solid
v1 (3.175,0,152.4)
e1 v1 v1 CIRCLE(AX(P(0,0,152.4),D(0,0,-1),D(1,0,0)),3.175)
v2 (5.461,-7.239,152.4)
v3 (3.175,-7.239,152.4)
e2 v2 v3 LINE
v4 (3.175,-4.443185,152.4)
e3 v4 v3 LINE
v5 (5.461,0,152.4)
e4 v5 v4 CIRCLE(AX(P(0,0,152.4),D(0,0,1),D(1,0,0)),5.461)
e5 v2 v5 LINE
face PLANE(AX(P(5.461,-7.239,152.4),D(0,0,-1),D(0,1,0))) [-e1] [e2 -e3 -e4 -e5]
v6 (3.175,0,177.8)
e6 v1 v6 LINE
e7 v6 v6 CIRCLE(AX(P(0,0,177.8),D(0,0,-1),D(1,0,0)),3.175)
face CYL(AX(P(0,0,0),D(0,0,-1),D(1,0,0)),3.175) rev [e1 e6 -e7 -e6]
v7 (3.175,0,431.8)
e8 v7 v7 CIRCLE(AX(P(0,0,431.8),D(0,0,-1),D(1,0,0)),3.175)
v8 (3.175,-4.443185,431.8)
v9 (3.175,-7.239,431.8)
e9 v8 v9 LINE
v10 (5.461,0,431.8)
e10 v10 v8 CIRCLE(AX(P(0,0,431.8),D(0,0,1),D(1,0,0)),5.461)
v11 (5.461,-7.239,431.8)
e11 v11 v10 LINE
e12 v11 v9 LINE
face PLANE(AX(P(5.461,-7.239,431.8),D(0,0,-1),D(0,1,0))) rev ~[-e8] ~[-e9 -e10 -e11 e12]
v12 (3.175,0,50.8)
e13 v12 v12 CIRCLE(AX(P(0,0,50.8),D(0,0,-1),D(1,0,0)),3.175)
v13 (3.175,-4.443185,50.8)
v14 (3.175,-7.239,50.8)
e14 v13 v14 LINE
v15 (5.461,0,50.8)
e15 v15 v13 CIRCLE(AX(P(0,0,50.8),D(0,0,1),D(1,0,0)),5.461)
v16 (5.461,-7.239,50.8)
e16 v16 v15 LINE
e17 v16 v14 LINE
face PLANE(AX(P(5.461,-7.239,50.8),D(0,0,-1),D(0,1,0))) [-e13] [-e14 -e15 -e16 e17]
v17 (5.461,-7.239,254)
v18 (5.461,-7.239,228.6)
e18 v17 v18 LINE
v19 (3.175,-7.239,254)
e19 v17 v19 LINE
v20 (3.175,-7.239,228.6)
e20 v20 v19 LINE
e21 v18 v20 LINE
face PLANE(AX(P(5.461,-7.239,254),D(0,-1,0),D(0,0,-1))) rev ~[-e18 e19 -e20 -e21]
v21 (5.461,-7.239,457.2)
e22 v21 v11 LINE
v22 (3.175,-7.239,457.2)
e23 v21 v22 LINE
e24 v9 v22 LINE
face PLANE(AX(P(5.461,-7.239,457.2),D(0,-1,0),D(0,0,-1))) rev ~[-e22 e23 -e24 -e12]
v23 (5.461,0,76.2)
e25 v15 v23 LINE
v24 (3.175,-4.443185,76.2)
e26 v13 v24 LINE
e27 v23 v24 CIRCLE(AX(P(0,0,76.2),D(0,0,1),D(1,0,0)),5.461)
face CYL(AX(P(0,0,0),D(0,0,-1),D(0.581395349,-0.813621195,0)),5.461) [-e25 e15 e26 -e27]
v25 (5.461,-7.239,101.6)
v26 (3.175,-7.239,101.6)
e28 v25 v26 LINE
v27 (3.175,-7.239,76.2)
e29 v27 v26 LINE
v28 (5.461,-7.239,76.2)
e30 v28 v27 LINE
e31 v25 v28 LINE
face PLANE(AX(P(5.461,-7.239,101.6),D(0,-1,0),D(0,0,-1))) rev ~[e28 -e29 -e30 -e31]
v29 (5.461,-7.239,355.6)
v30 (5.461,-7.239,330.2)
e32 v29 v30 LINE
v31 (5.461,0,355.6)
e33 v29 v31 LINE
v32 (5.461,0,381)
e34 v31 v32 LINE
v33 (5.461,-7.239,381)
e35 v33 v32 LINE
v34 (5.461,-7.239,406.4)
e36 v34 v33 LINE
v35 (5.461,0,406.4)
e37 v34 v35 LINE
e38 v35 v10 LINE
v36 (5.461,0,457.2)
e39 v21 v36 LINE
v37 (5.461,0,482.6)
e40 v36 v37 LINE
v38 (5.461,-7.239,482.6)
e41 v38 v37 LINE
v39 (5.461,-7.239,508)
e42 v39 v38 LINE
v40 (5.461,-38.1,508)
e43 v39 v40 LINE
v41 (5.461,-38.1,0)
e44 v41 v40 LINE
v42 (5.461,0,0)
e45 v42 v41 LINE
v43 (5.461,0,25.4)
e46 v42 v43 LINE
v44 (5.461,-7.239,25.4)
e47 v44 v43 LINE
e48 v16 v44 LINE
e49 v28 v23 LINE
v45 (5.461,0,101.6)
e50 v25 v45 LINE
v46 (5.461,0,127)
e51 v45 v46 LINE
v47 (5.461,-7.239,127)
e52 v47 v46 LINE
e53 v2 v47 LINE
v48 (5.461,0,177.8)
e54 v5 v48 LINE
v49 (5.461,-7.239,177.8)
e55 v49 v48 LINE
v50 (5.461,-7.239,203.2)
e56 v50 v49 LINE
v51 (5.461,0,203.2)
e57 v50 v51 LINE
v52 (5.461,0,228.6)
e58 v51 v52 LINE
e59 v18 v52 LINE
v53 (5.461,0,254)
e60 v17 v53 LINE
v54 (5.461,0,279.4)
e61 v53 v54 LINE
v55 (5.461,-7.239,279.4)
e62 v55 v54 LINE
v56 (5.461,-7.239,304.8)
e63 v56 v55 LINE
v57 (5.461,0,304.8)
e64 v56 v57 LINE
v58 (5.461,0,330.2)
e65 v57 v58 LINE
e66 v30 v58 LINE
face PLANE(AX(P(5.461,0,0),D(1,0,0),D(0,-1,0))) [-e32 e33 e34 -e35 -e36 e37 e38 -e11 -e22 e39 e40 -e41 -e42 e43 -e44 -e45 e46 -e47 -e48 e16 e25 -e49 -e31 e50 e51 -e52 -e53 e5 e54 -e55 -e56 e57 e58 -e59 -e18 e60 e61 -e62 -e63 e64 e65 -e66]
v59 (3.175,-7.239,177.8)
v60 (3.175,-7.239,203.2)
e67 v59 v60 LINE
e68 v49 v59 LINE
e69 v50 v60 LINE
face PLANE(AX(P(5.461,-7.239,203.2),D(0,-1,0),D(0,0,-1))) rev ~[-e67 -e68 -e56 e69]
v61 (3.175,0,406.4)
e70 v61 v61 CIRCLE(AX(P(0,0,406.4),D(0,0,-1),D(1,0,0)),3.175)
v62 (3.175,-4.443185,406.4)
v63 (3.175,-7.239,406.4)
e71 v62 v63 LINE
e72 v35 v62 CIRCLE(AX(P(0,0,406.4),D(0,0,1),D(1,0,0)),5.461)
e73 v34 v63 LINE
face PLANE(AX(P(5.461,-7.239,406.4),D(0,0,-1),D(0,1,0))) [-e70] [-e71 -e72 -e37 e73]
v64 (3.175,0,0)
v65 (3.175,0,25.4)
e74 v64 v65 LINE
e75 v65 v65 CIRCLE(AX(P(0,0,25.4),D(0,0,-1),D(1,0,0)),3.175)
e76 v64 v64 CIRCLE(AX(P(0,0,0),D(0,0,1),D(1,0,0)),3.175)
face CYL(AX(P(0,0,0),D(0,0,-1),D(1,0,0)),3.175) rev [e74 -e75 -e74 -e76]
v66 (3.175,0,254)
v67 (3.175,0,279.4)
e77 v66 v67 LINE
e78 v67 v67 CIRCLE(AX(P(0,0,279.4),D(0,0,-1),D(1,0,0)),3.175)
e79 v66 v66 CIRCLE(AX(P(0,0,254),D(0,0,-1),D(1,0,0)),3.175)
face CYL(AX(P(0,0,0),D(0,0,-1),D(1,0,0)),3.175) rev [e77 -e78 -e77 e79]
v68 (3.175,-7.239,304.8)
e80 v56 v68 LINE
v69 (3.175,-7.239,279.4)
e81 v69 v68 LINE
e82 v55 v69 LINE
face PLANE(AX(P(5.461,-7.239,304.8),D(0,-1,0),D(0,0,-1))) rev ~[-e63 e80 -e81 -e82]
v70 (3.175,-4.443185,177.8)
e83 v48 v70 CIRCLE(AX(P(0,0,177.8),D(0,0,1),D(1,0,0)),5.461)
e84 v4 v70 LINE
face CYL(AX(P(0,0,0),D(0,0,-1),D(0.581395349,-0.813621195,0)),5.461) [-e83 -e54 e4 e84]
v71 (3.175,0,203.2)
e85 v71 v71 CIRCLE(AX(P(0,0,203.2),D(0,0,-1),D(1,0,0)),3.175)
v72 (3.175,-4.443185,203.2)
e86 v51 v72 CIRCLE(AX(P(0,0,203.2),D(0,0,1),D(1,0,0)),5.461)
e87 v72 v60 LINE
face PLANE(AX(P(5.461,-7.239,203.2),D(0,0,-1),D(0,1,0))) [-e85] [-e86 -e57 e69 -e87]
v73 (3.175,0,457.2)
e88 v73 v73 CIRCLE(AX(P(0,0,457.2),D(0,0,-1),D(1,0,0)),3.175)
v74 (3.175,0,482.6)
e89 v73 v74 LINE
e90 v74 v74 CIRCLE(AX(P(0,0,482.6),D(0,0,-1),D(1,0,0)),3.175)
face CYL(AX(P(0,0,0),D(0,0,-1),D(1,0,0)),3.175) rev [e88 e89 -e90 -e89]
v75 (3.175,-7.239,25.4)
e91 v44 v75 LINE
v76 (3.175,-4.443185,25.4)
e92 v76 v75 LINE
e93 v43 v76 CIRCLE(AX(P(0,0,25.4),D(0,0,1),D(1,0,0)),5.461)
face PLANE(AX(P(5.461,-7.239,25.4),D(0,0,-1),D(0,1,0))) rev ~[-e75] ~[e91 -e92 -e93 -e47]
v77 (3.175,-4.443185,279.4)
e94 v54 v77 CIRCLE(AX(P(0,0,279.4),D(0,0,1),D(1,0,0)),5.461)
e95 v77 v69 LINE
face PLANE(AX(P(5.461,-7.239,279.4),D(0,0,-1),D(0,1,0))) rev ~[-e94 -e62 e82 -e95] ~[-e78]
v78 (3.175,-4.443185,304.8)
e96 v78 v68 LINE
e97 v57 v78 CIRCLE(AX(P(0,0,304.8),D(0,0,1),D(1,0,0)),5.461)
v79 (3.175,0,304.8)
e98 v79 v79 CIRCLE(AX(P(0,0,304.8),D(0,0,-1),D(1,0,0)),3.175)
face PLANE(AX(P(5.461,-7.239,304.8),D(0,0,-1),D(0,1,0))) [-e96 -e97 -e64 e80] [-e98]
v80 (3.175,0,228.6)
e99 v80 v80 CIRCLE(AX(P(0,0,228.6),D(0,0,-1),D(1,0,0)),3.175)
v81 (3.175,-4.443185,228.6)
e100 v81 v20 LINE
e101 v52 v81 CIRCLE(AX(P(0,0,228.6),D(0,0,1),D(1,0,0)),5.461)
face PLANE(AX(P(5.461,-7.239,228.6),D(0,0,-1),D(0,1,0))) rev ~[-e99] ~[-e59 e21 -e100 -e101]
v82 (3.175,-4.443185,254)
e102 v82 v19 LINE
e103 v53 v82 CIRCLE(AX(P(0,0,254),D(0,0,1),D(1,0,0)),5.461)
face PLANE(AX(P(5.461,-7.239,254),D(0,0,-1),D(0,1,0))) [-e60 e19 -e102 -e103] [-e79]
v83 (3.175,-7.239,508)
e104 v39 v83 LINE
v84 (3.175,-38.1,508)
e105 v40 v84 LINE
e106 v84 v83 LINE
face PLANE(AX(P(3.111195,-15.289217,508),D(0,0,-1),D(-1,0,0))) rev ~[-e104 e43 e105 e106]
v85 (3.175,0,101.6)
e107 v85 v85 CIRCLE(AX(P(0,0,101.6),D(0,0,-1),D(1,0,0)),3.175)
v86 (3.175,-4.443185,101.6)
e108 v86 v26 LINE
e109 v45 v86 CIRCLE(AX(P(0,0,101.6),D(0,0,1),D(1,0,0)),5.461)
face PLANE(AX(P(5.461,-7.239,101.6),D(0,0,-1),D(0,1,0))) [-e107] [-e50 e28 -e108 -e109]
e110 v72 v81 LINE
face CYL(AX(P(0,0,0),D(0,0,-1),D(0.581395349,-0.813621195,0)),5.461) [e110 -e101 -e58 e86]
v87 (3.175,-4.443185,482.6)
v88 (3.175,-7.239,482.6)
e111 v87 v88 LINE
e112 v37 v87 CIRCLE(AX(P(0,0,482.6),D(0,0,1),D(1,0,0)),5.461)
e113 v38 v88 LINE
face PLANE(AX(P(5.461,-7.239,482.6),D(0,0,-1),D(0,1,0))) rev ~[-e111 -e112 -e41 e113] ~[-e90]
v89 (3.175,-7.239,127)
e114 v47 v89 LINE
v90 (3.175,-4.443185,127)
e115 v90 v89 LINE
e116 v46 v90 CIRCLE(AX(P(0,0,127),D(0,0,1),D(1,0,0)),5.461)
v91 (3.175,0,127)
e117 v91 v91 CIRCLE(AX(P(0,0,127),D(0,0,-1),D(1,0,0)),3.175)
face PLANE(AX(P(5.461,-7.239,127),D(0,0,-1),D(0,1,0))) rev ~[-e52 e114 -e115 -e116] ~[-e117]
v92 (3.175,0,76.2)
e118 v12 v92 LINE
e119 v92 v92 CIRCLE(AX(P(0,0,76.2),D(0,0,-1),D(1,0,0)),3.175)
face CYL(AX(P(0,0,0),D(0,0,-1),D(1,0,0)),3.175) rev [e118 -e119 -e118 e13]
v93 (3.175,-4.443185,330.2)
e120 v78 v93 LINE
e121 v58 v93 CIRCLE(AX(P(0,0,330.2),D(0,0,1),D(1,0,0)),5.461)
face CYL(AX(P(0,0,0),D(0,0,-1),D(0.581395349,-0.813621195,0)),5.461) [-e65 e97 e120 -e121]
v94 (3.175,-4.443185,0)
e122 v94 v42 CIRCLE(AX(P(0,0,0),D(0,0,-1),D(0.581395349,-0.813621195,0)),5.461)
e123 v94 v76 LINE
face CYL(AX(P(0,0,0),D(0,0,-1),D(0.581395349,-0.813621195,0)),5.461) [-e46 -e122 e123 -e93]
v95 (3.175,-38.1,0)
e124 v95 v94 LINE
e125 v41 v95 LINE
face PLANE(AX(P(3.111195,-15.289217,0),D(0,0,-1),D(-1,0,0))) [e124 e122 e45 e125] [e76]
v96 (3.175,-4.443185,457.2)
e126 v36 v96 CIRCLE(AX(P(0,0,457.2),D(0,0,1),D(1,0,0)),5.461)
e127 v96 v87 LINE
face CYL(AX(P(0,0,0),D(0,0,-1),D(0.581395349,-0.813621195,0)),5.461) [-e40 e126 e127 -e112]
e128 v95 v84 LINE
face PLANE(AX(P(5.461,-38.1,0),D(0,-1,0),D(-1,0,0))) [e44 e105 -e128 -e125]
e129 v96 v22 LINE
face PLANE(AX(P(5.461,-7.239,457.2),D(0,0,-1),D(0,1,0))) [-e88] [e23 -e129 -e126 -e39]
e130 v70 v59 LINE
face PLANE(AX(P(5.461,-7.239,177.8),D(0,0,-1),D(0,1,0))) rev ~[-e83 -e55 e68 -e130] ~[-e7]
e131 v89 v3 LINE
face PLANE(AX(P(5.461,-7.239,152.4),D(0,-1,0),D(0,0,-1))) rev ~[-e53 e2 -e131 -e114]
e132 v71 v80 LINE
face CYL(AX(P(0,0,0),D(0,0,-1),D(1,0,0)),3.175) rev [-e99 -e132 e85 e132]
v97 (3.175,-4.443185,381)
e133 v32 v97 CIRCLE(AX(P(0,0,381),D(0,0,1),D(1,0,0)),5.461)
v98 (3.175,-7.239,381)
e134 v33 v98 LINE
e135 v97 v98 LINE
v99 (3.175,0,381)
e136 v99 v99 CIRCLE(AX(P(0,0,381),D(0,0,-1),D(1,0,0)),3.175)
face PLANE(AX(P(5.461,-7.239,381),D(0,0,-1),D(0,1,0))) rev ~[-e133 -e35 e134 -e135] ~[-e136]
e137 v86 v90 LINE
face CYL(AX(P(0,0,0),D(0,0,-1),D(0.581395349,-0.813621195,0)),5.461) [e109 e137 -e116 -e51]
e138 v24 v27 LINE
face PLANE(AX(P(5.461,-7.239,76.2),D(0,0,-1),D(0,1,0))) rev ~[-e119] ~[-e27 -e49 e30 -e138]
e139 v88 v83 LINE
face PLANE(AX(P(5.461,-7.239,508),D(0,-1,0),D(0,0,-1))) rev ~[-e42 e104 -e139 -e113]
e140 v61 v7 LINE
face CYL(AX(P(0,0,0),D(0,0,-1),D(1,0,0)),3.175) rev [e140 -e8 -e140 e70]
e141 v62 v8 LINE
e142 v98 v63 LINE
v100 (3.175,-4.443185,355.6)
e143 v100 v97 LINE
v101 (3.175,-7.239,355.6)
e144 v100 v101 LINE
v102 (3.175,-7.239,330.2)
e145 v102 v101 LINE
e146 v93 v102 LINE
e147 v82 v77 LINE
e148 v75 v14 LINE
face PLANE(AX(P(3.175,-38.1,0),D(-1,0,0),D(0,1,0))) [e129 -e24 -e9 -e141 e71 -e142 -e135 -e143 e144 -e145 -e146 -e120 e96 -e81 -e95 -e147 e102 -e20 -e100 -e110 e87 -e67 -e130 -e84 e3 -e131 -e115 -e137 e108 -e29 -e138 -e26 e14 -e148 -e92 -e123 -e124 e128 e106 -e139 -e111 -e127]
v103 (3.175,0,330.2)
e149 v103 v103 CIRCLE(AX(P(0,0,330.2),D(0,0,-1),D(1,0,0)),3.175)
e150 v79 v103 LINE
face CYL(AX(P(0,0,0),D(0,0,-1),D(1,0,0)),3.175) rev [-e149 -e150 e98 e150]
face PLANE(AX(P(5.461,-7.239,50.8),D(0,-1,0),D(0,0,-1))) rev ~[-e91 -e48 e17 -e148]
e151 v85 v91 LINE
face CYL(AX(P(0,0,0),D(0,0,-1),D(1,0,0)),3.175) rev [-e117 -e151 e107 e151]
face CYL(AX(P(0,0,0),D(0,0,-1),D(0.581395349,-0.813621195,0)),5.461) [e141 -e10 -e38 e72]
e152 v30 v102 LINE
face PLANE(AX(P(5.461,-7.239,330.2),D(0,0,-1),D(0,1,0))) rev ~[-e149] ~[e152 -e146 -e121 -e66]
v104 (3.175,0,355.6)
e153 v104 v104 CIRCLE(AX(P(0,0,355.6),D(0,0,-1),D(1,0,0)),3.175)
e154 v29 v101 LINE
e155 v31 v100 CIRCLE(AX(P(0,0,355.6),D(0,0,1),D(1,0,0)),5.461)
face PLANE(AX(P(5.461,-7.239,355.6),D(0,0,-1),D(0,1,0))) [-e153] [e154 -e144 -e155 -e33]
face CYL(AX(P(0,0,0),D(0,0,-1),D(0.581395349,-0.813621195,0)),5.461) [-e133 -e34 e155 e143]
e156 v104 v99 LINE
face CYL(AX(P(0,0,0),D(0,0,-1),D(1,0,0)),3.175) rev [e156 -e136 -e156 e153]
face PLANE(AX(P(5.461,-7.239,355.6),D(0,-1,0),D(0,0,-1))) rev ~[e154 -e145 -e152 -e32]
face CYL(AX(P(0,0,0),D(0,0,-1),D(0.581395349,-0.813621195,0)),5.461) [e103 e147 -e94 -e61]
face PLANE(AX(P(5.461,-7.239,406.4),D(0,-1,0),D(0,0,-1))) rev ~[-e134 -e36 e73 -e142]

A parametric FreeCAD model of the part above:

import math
import FreeCAD as App
import Part
import Sketcher

V = App.Vector
Q = App.Units.Quantity

doc = App.newDocument("Part")
params = doc.addObject("Spreadsheet::Sheet", "Params")
for row, (alias, value) in enumerate([
    ("sketch1_diameter", "0.25 in"),
    ("sketch1_height", "1.5 in"),
    ("sketch1_radius", "0.215 in"),
    ("sketch1_width", "0.09 in"),
    ("pad1_length", "20 in"),
    ("sketch2_height", "1 in"),
    ("sketch2_width", "0.5 in"),
    ("linearpattern_pitch", "2 in"),
], start=1):
    params.set(f"A{row}", alias)
    params.set(f"B{row}", "=" + value)
    params.setAlias(f"B{row}", alias)

body = doc.addObject("PartDesign::Body", "Body")

# Sketch on XY plane
sketch1 = body.newObject("Sketcher::SketchObject", "Sketch")
sketch1.AttachmentSupport = (doc.getObject("XY_Plane"), [""])
sketch1.MapMode = "FlatFace"
sketch1.addGeometry([
    Part.LineSegment(V(5.5, -38.1, 0), V(5.5, 0, 0)),  # 0
    Part.ArcOfCircle(Part.Circle(V(0, 0, 0), V(0, 0, 1), 5.5), math.radians(0), math.radians(306)),  # 1
    Part.LineSegment(V(3.2, -4.4, 0), V(3.2, -38.1, 0)),  # 2
    Part.LineSegment(V(3.2, -38.1, 0), V(5.5, -38.1, 0)),  # 3
    Part.Circle(V(0, 0, 0), V(0, 0, 1), 3.2),  # 4
], False)
sketch1.addConstraint([
    Sketcher.Constraint("Tangent", 0, 2, 1, 1),
    Sketcher.Constraint("Coincident", 1, 2, 2, 1),
    Sketcher.Constraint("Coincident", 2, 2, 3, 1),
    Sketcher.Constraint("Coincident", 3, 2, 0, 1),
    Sketcher.Constraint("Vertical", 0),
    Sketcher.Constraint("Vertical", 2),
    Sketcher.Constraint("Horizontal", 3),
    Sketcher.Constraint("Coincident", 1, 3, -1, 1),
    Sketcher.Constraint("Coincident", 4, 3, -1, 1),
    Sketcher.Constraint("Diameter", 4, Q("0.25 in")),
    Sketcher.Constraint("DistanceY", 0, 1, 0, 2, Q("1.5 in")),
    Sketcher.Constraint("Radius", 1, Q("0.215 in")),
    Sketcher.Constraint("DistanceX", 3, 1, 3, 2, Q("0.09 in")),
])
sketch1.setExpression("Constraints[9]", "Params.sketch1_diameter")
sketch1.setExpression("Constraints[10]", "Params.sketch1_height")
sketch1.setExpression("Constraints[11]", "Params.sketch1_radius")
sketch1.setExpression("Constraints[12]", "Params.sketch1_width")
pad1 = body.newObject("PartDesign::Pad", "Pad")
pad1.Profile = sketch1
pad1.setExpression("Length", "Params.pad1_length")

# Sketch on YZ plane
sketch2 = body.newObject("Sketcher::SketchObject", "Sketch001")
sketch2.AttachmentSupport = (doc.getObject("YZ_Plane"), [""])
sketch2.MapMode = "FlatFace"
sketch2.AttachmentOffset = App.Placement(V(0, 0, 0.215 * 25.4), App.Rotation())
sketch2.addGeometry([
    Part.LineSegment(V(5, 508, 0), V(-7, 508, 0)),
    Part.LineSegment(V(-7, 508, 0), V(-7, 483, 0)),
    Part.LineSegment(V(-7, 483, 0), V(5, 483, 0)),
    Part.LineSegment(V(5, 483, 0), V(5, 508, 0)),
], False)
sketch2.addConstraint([
    Sketcher.Constraint("Coincident", 0, 2, 1, 1),
    Sketcher.Constraint("Coincident", 1, 2, 2, 1),
    Sketcher.Constraint("Coincident", 2, 2, 3, 1),
    Sketcher.Constraint("Coincident", 3, 2, 0, 1),
    Sketcher.Constraint("Horizontal", 0),
    Sketcher.Constraint("Vertical", 1),
    Sketcher.Constraint("Horizontal", 2),
    Sketcher.Constraint("Vertical", 3),
    Sketcher.Constraint("DistanceY", 1, 2, 1, 1, Q("1 in")),
    Sketcher.Constraint("DistanceX", 0, 2, 0, 1, Q("0.5 in")),
    Sketcher.Constraint("DistanceY", -1, 1, 0, 2, Q("20 in")),
    Sketcher.Constraint("DistanceX", 0, 2, -1, 1, Q("0.285 in")),
])
sketch2.setExpression("Constraints[8]", "Params.sketch2_height")
sketch2.setExpression("Constraints[9]", "Params.sketch2_width")
pocket1 = body.newObject("PartDesign::Pocket", "Pocket")
pocket1.Profile = sketch2
pocket1.Type = "ThroughAll"
doc.recompute()

linearpattern = body.newObject("PartDesign::LinearPattern", "LinearPattern")
linearpattern.Originals = [pocket1]
linearpattern.Direction = (doc.getObject("Z_Axis"), [""])
linearpattern.Mode = "offset"
linearpattern.setExpression("Offset", "Params.linearpattern_pitch")
linearpattern.Occurrences = 10
linearpattern.Reversed = True
body.Tip = linearpattern

doc.recompute()
